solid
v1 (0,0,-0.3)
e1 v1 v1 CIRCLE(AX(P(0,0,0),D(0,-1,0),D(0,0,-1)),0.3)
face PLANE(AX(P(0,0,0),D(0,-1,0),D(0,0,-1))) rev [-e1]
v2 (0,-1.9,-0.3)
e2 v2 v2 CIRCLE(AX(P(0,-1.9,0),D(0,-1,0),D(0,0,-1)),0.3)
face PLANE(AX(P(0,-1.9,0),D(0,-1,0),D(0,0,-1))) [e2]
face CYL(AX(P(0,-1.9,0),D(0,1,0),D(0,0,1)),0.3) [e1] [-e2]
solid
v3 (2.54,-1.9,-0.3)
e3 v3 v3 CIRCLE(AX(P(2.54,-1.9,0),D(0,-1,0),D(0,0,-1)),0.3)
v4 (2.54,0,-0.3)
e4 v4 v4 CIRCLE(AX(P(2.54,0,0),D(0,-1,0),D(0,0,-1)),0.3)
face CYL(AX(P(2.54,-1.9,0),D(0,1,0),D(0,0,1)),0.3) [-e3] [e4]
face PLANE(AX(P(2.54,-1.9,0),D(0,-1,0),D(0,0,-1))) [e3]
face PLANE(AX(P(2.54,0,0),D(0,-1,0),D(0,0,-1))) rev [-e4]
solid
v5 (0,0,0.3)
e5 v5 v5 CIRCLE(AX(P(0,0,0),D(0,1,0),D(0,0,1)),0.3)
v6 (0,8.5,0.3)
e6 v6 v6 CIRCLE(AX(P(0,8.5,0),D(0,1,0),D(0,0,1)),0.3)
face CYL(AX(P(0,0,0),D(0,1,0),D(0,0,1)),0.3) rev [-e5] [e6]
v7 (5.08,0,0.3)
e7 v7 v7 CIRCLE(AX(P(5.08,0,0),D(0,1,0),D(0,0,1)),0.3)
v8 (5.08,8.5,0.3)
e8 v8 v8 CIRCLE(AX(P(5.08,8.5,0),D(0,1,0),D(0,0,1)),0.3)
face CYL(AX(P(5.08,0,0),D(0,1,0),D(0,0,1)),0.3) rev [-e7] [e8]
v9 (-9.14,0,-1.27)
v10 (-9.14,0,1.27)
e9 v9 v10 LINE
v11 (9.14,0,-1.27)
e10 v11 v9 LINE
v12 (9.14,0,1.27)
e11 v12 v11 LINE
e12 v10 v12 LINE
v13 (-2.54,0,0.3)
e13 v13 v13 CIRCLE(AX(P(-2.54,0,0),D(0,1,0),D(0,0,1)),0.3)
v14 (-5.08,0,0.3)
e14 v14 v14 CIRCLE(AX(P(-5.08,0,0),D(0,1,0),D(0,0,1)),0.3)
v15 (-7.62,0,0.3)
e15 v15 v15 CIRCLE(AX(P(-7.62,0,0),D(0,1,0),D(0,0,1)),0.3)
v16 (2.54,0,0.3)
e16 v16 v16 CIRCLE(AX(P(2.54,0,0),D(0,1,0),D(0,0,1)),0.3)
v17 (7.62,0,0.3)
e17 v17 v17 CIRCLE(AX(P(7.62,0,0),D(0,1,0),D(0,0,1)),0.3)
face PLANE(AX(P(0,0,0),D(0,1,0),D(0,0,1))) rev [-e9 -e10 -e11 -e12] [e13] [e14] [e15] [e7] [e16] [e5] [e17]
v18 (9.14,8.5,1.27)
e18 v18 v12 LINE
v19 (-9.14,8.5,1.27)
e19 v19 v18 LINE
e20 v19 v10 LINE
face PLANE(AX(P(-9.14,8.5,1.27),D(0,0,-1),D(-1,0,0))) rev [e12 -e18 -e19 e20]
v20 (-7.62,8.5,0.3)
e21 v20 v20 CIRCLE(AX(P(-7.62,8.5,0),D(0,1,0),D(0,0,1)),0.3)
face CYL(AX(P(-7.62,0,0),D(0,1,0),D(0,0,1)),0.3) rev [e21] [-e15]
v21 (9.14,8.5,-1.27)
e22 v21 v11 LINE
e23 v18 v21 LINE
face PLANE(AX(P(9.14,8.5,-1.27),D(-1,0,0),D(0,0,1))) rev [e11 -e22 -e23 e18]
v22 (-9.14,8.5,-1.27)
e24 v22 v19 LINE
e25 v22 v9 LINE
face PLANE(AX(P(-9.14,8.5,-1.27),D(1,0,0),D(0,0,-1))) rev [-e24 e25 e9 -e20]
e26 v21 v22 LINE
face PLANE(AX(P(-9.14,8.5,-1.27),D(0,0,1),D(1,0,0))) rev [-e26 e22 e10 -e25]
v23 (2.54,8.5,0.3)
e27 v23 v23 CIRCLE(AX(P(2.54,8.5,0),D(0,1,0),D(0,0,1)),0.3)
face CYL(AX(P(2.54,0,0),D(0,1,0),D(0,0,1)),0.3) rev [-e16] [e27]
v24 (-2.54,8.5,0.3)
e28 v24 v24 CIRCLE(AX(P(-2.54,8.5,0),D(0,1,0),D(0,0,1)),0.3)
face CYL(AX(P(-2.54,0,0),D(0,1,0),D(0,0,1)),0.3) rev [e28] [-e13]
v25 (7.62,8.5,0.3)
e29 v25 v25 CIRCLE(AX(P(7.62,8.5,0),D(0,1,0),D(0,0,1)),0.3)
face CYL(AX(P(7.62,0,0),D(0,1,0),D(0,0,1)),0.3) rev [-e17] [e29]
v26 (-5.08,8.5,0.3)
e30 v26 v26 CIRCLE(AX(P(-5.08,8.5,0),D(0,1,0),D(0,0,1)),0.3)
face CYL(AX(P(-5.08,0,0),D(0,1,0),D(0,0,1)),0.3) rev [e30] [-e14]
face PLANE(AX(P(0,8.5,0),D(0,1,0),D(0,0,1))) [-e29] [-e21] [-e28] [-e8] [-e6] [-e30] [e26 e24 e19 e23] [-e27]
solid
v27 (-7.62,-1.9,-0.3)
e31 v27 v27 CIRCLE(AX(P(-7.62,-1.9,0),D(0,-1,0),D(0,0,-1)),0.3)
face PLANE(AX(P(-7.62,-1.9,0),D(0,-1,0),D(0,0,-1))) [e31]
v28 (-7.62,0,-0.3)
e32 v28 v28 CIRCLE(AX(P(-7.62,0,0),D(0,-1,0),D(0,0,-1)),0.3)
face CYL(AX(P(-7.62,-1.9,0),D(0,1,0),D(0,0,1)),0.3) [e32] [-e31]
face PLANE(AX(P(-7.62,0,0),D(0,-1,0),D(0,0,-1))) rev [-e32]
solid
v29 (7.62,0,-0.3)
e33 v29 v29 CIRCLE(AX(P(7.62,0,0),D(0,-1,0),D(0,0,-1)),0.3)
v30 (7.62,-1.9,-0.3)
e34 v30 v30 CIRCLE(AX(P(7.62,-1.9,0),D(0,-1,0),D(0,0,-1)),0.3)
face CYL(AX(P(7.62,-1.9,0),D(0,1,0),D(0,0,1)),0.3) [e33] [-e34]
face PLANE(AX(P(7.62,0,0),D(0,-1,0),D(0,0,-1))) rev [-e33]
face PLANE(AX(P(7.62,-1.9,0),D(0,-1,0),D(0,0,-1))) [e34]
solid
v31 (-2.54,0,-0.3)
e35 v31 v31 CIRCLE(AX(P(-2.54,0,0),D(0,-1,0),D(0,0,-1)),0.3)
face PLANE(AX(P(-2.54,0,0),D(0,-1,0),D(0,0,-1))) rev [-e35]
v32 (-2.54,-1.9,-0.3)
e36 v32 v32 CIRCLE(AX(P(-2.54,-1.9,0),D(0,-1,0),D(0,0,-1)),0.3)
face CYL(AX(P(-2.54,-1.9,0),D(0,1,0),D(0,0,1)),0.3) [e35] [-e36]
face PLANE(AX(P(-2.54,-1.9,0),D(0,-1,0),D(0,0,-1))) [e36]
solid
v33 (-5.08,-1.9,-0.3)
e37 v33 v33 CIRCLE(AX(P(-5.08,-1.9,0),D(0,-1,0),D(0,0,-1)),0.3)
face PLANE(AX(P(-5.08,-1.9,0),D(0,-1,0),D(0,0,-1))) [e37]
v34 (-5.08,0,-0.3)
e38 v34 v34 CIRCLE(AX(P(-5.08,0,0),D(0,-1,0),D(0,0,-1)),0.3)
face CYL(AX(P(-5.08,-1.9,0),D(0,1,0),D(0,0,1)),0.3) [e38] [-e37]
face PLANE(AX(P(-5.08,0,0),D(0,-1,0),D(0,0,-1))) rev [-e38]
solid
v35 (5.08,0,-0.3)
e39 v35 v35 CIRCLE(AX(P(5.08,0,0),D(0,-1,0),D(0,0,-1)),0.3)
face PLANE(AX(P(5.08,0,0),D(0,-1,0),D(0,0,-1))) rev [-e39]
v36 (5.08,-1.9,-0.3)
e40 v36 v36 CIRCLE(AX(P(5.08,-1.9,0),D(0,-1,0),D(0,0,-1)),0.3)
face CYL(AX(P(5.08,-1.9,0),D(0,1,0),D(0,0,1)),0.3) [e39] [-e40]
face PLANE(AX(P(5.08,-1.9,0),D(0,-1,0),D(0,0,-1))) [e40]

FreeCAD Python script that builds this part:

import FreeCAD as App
import Part
import Sketcher
Q = App.Units.Quantity


def add_polygon(sketch, points):
    """Adds a closed chain of lines whose ends are joined by coincident constraints."""
    first, n = sketch.GeometryCount, len(points)
    for a, b in zip(points, points[1:] + points[:1]):
        sketch.addGeometry(Part.LineSegment(App.Vector(*a, 0), App.Vector(*b, 0)), False)
    for i in range(n):
        sketch.addConstraint(Sketcher.Constraint("Coincident", first + i, 2, first + (i + 1) % n, 1))

doc = App.newDocument("Part")
body = doc.addObject("PartDesign::Body", "Body")

sketch1 = doc.addObject("Sketcher::SketchObject", "Sketch")
body.addObject(sketch1)
sketch1.AttachmentSupport = (doc.XZ_Plane, [""])
sketch1.MapMode = "FlatFace"
add_polygon(sketch1, [(-9.14, -1.27), (-9.14, 1.27), (9.14, 1.27), (9.14, -1.27)])
sketch1.addConstraint(Sketcher.Constraint("Vertical", 0))
sketch1.addConstraint(Sketcher.Constraint("Horizontal", 1))
sketch1.addConstraint(Sketcher.Constraint("Vertical", 2))
sketch1.addConstraint(Sketcher.Constraint("Horizontal", 3))
sketch1.addConstraint(Sketcher.Constraint("Symmetric", 0, 2, 2, 2, -1, 1))
sketch1.addConstraint(Sketcher.Constraint("DistanceX", 1, 1, 1, 2, Q("18.28 mm")))
sketch1.addConstraint(Sketcher.Constraint("DistanceY", 0, 1, 0, 2, Q("2.54 mm")))
pad1 = doc.addObject("PartDesign::Pad", "Pad")
body.addObject(pad1)
pad1.Profile = sketch1
pad1.Length = 8.5
pad1.Reversed = True

sketch2 = doc.addObject("Sketcher::SketchObject", "Sketch001")
body.addObject(sketch2)
sketch2.AttachmentSupport = (doc.XZ_Plane, [""])
sketch2.MapMode = "FlatFace"
sketch2.AttachmentOffset = App.Placement(App.Vector(0, 0, -8.5), App.Rotation())
sketch2.addGeometry(Part.Circle(App.Vector(-7.62, 0, 0), App.Vector(0, 0, 1), 0.3), False)
sketch2.addGeometry(Part.Circle(App.Vector(-5.08, 0, 0), App.Vector(0, 0, 1), 0.3), False)
sketch2.addGeometry(Part.Circle(App.Vector(-2.54, 0, 0), App.Vector(0, 0, 1), 0.3), False)
sketch2.addGeometry(Part.Circle(App.Vector(0, 0, 0), App.Vector(0, 0, 1), 0.3), False)
sketch2.addGeometry(Part.Circle(App.Vector(2.54, 0, 0), App.Vector(0, 0, 1), 0.3), False)
sketch2.addGeometry(Part.Circle(App.Vector(5.08, 0, 0), App.Vector(0, 0, 1), 0.3), False)
sketch2.addGeometry(Part.Circle(App.Vector(7.62, 0, 0), App.Vector(0, 0, 1), 0.3), False)
sketch2.addConstraint(Sketcher.Constraint("Coincident", 3, 3, -1, 1))
sketch2.addConstraint(Sketcher.Constraint("Equal", 0, 1))
sketch2.addConstraint(Sketcher.Constraint("Equal", 1, 2))
sketch2.addConstraint(Sketcher.Constraint("Equal", 2, 3))
sketch2.addConstraint(Sketcher.Constraint("Equal", 3, 4))
sketch2.addConstraint(Sketcher.Constraint("Equal", 4, 5))
sketch2.addConstraint(Sketcher.Constraint("Equal", 5, 6))
sketch2.addConstraint(Sketcher.Constraint("Symmetric", 2, 3, 4, 3, -1, 1))
sketch2.addConstraint(Sketcher.Constraint("Symmetric", 1, 3, 5, 3, -1, 1))
sketch2.addConstraint(Sketcher.Constraint("Symmetric", 0, 3, 6, 3, -1, 1))
sketch2.addConstraint(Sketcher.Constraint("PointOnObject", 0, 3, -1))
sketch2.addConstraint(Sketcher.Constraint("PointOnObject", 1, 3, -1))
sketch2.addConstraint(Sketcher.Constraint("PointOnObject", 2, 3, -1))
sketch2.addConstraint(Sketcher.Constraint("Diameter", 0, Q("0.6 mm")))
sketch2.addConstraint(Sketcher.Constraint("DistanceX", 0, 3, 5, 3, Q("12.7 mm")))
sketch2.addConstraint(Sketcher.Constraint("DistanceX", 0, 3, -1, 1, Q("7.62 mm")))
sketch2.addConstraint(Sketcher.Constraint("DistanceX", 2, 3, -1, 1, Q("2.54 mm")))
pocket1 = doc.addObject("PartDesign::Pocket", "Pocket")
body.addObject(pocket1)
pocket1.Profile = sketch2
pocket1.Length = 8.5
pocket1.Reversed = True
body2 = doc.addObject("PartDesign::Body", "Body001")

sketch3 = doc.addObject("Sketcher::SketchObject", "Sketch002")
body2.addObject(sketch3)
sketch3.AttachmentSupport = (doc.getObject("XZ_Plane001"), [""])
sketch3.MapMode = "FlatFace"
sketch3.addGeometry(Part.Circle(App.Vector(-7.62, 0, 0), App.Vector(0, 0, 1), 0.3), False)
sketch3.addConstraint(Sketcher.Constraint("PointOnObject", 0, 3, -1))
sketch3.addConstraint(Sketcher.Constraint("Diameter", 0, Q("0.6 mm")))
sketch3.addConstraint(Sketcher.Constraint("DistanceX", 0, 3, -1, 1, Q("7.62 mm")))
pad2 = doc.addObject("PartDesign::Pad", "Pad001")
body2.addObject(pad2)
pad2.Profile = sketch3
pad2.Length = 1.9
body3 = doc.addObject("PartDesign::Body", "Body002")

sketch4 = doc.addObject("Sketcher::SketchObject", "Sketch003")
body3.addObject(sketch4)
sketch4.AttachmentSupport = (doc.getObject("XZ_Plane002"), [""])
sketch4.MapMode = "FlatFace"
sketch4.addGeometry(Part.Circle(App.Vector(-5.08, 0, 0), App.Vector(0, 0, 1), 0.3), False)
sketch4.addConstraint(Sketcher.Constraint("PointOnObject", 0, 3, -1))
sketch4.addConstraint(Sketcher.Constraint("Diameter", 0, Q("0.6 mm")))
sketch4.addConstraint(Sketcher.Constraint("DistanceX", 0, 3, -1, 1, Q("5.08 mm")))
pad3 = doc.addObject("PartDesign::Pad", "Pad002")
body3.addObject(pad3)
pad3.Profile = sketch4
pad3.Length = 1.9
body4 = doc.addObject("PartDesign::Body", "Body003")

sketch5 = doc.addObject("Sketcher::SketchObject", "Sketch004")
body4.addObject(sketch5)
sketch5.AttachmentSupport = (doc.getObject("XZ_Plane003"), [""])
sketch5.MapMode = "FlatFace"
sketch5.addGeometry(Part.Circle(App.Vector(-2.54, 0, 0), App.Vector(0, 0, 1), 0.3), False)
sketch5.addConstraint(Sketcher.Constraint("PointOnObject", 0, 3, -1))
sketch5.addConstraint(Sketcher.Constraint("Diameter", 0, Q("0.6 mm")))
sketch5.addConstraint(Sketcher.Constraint("DistanceX", 0, 3, -1, 1, Q("2.54 mm")))
pad4 = doc.addObject("PartDesign::Pad", "Pad003")
body4.addObject(pad4)
pad4.Profile = sketch5
pad4.Length = 1.9
body5 = doc.addObject("PartDesign::Body", "Body004")

sketch6 = doc.addObject("Sketcher::SketchObject", "Sketch005")
body5.addObject(sketch6)
sketch6.AttachmentSupport = (doc.getObject("XZ_Plane004"), [""])
sketch6.MapMode = "FlatFace"
sketch6.addGeometry(Part.Circle(App.Vector(0, 0, 0), App.Vector(0, 0, 1), 0.3), False)
sketch6.addConstraint(Sketcher.Constraint("Coincident", 0, 3, -1, 1))
sketch6.addConstraint(Sketcher.Constraint("Diameter", 0, Q("0.6 mm")))
pad5 = doc.addObject("PartDesign::Pad", "Pad004")
body5.addObject(pad5)
pad5.Profile = sketch6
pad5.Length = 1.9
body6 = doc.addObject("PartDesign::Body", "Body005")

sketch7 = doc.addObject("Sketcher::SketchObject", "Sketch006")
body6.addObject(sketch7)
sketch7.AttachmentSupport = (doc.getObject("XZ_Plane005"), [""])
sketch7.MapMode = "FlatFace"
sketch7.addGeometry(Part.Circle(App.Vector(2.54, 0, 0), App.Vector(0, 0, 1), 0.3), False)
sketch7.addConstraint(Sketcher.Constraint("PointOnObject", 0, 3, -1))
sketch7.addConstraint(Sketcher.Constraint("Diameter", 0, Q("0.6 mm")))
sketch7.addConstraint(Sketcher.Constraint("DistanceX", -1, 1, 0, 3, Q("2.54 mm")))
pad6 = doc.addObject("PartDesign::Pad", "Pad005")
body6.addObject(pad6)
pad6.Profile = sketch7
pad6.Length = 1.9
body7 = doc.addObject("PartDesign::Body", "Body006")

sketch8 = doc.addObject("Sketcher::SketchObject", "Sketch007")
body7.addObject(sketch8)
sketch8.AttachmentSupport = (doc.getObject("XZ_Plane006"), [""])
sketch8.MapMode = "FlatFace"
sketch8.addGeometry(Part.Circle(App.Vector(5.08, 0, 0), App.Vector(0, 0, 1), 0.3), False)
sketch8.addConstraint(Sketcher.Constraint("PointOnObject", 0, 3, -1))
sketch8.addConstraint(Sketcher.Constraint("Diameter", 0, Q("0.6 mm")))
sketch8.addConstraint(Sketcher.Constraint("DistanceX", -1, 1, 0, 3, Q("5.08 mm")))
pad7 = doc.addObject("PartDesign::Pad", "Pad006")
body7.addObject(pad7)
pad7.Profile = sketch8
pad7.Length = 1.9
body8 = doc.addObject("PartDesign::Body", "Body007")

sketch9 = doc.addObject("Sketcher::SketchObject", "Sketch008")
body8.addObject(sketch9)
sketch9.AttachmentSupport = (doc.getObject("XZ_Plane007"), [""])
sketch9.MapMode = "FlatFace"
sketch9.addGeometry(Part.Circle(App.Vector(7.62, 0, 0), App.Vector(0, 0, 1), 0.3), False)
sketch9.addConstraint(Sketcher.Constraint("PointOnObject", 0, 3, -1))
sketch9.addConstraint(Sketcher.Constraint("Diameter", 0, Q("0.6 mm")))
sketch9.addConstraint(Sketcher.Constraint("DistanceX", -1, 1, 0, 3, Q("7.62 mm")))
pad8 = doc.addObject("PartDesign::Pad", "Pad007")
body8.addObject(pad8)
pad8.Profile = sketch9
pad8.Length = 1.9

doc.recompute()
